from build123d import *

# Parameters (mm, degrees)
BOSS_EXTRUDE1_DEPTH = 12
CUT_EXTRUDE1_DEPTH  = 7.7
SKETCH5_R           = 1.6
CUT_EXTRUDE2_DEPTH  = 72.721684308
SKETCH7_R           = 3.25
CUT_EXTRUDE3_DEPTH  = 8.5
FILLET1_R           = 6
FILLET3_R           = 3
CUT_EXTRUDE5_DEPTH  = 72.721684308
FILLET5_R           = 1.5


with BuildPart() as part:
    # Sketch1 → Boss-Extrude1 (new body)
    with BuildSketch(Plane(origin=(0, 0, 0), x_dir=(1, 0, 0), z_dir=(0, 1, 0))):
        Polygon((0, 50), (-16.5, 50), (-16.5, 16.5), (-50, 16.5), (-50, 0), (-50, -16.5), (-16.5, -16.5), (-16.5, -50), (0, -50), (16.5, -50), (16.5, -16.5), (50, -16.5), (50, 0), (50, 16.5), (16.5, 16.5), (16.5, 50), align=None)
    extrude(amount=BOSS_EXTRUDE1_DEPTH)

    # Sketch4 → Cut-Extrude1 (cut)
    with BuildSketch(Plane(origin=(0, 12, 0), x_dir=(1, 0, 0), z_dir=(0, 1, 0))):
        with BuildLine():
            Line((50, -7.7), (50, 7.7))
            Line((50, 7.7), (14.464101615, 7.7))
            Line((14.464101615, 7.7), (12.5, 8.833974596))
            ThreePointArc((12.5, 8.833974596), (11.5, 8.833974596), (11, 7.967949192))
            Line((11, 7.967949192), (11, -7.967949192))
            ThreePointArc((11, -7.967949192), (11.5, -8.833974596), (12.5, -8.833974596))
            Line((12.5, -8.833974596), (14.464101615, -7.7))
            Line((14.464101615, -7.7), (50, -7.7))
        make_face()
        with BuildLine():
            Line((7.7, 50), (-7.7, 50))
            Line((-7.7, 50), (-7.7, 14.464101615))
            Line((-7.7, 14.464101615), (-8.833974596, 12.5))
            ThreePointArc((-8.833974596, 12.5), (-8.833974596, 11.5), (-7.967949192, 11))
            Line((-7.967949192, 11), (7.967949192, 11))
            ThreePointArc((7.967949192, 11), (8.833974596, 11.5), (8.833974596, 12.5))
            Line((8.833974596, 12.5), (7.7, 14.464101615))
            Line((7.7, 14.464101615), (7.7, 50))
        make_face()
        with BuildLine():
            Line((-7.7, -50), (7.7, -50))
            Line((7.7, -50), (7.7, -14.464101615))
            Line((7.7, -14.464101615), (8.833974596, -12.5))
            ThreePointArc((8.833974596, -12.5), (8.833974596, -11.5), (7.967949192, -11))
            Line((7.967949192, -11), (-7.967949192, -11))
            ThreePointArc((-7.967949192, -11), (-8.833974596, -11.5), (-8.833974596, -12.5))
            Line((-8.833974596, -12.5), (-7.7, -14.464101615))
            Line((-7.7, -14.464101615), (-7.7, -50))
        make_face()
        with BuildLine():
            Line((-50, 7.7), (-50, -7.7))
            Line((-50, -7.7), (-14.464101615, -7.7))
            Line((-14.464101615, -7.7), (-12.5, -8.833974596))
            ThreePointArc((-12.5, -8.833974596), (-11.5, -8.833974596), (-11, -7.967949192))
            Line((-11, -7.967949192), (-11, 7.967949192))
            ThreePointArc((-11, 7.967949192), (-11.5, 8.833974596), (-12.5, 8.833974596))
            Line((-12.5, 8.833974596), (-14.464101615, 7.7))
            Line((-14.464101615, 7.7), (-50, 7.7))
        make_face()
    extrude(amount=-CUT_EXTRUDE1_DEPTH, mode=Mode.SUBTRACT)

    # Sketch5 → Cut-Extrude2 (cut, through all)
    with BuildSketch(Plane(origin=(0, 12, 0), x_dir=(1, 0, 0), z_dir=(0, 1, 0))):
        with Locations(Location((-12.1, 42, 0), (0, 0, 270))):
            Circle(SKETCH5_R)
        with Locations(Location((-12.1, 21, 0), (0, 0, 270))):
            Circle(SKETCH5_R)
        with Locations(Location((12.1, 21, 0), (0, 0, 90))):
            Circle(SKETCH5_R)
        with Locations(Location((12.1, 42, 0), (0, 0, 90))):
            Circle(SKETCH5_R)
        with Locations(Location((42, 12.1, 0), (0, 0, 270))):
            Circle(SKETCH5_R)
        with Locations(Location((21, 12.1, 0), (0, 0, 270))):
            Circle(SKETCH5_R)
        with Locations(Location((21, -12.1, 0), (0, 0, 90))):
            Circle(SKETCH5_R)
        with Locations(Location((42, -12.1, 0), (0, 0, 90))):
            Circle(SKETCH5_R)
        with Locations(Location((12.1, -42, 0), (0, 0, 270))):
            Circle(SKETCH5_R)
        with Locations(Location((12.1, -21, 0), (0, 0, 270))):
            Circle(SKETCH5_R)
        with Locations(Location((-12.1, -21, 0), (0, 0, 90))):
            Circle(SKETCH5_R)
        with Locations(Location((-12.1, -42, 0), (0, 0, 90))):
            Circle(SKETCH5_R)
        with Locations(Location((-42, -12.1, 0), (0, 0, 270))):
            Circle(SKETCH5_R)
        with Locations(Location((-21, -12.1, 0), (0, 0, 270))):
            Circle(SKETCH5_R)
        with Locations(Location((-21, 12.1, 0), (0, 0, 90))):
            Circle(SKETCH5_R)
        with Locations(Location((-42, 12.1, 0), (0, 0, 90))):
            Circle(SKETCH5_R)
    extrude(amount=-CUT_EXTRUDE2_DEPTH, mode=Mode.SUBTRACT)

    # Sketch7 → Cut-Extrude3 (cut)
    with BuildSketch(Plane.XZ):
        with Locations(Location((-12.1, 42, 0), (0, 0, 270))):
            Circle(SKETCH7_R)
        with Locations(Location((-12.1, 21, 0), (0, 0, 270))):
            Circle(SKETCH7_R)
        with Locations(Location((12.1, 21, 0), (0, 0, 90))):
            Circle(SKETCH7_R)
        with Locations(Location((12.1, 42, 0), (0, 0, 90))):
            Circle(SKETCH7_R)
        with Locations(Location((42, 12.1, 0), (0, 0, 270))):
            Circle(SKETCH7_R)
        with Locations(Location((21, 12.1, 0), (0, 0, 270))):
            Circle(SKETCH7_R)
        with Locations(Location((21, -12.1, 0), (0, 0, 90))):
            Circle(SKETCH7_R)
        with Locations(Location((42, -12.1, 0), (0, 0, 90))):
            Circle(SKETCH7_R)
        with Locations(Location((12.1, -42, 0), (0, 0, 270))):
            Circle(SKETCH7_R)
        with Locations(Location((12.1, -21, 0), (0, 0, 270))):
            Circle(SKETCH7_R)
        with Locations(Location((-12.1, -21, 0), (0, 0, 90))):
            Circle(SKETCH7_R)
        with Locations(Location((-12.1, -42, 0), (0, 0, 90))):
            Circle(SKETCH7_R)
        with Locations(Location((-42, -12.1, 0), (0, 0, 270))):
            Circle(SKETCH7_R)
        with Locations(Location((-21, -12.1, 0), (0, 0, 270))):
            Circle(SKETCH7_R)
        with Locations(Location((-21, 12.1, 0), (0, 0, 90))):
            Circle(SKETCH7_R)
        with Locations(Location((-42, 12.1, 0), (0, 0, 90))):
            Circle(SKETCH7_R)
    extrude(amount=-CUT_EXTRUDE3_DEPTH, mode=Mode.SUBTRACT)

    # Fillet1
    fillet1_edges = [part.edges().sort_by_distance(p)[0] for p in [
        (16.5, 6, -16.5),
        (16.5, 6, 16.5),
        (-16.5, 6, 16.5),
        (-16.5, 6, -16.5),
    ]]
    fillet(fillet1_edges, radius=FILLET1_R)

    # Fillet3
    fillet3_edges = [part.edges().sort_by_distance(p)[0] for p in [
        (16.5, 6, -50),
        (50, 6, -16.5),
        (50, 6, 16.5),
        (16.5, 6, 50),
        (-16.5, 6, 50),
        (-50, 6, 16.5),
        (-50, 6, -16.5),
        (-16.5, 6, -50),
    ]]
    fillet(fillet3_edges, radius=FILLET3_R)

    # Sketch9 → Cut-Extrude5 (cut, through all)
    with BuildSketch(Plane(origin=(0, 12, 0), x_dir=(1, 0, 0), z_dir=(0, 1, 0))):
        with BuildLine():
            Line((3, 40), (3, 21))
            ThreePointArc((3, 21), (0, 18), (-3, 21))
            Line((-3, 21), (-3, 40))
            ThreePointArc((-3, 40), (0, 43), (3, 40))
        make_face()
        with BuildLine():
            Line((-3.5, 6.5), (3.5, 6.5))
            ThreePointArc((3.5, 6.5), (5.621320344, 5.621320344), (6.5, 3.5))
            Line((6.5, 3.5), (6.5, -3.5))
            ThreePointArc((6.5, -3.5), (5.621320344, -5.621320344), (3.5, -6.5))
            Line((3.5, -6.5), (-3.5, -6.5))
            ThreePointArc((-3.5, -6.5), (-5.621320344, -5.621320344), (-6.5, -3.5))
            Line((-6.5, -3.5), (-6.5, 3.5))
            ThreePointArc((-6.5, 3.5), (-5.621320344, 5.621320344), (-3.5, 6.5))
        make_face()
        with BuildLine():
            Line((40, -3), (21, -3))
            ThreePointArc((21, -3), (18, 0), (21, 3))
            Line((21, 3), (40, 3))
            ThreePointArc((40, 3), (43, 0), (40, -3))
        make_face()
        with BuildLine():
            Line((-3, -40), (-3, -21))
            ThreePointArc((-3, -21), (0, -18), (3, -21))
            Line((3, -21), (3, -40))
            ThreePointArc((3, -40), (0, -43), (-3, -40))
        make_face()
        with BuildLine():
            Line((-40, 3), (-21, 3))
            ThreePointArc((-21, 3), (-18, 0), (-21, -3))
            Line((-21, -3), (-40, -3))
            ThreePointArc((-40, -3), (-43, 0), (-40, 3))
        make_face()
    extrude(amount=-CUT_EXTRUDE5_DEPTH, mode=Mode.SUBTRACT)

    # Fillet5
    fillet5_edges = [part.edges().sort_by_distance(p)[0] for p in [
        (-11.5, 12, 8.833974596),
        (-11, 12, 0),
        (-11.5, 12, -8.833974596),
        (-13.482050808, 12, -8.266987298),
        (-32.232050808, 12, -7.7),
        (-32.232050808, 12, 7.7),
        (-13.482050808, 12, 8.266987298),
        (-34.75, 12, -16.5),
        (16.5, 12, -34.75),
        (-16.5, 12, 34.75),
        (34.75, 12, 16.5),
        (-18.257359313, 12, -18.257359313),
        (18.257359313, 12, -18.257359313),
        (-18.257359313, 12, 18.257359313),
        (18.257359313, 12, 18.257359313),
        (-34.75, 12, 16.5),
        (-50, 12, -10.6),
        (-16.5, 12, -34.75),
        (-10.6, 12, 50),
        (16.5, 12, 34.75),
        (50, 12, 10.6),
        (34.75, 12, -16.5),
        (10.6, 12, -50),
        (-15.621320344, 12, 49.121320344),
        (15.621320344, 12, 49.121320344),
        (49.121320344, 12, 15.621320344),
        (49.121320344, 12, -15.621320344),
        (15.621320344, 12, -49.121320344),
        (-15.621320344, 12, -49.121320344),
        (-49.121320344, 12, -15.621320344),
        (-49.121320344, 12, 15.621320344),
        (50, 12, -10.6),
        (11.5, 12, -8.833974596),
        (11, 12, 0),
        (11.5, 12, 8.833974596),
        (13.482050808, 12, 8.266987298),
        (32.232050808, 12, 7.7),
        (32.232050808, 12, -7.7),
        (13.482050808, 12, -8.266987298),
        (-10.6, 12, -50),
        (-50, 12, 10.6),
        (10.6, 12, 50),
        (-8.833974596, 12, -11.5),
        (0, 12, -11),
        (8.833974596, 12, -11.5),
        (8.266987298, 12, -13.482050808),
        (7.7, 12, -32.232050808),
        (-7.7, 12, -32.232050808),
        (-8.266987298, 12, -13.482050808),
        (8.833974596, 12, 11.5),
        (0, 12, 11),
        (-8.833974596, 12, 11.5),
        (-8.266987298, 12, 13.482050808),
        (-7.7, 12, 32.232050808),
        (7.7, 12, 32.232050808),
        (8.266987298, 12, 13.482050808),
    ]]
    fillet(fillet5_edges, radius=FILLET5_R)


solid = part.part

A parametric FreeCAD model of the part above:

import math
import FreeCAD as App
import Part
import Sketcher
from FreeCAD import Vector
Q = App.Units.Quantity


def edges_at(feature, points):
    """Names of the edges that pass closest to the given points."""
    edges = feature.Shape.Edges
    near = lambda p: min(range(len(edges)), key=lambda i: edges[i].distToShape(Part.Vertex(*p))[0])
    return sorted({f"Edge{near(p) + 1}" for p in points})


def add_polygon(sketch, points):
    """Adds a closed chain of lines whose ends are joined by coincident constraints."""
    first, n = sketch.GeometryCount, len(points)
    for a, b in zip(points, points[1:] + points[:1]):
        sketch.addGeometry(Part.LineSegment(App.Vector(*a, 0), App.Vector(*b, 0)), False)
    for i in range(n):
        sketch.addConstraint(Sketcher.Constraint("Coincident", first + i, 2, first + (i + 1) % n, 1))

doc = App.newDocument("Part")
body = doc.addObject("PartDesign::Body", "Body")

sketch1 = body.newObject("Sketcher::SketchObject", "Sketch")
sketch1.AttachmentSupport = (doc.getObject("XZ_Plane"), [""])
sketch1.MapMode = "FlatFace"
add_polygon(sketch1, [(-16, -50), (-16, -16), (-50, -16), (-50, 16), (-16, 16), (-16, 50), (16, 50), (16, 16), (50, 16), (50, -16), (16, -16), (16, -50)])
sketch1.addConstraint([
    Sketcher.Constraint("Vertical", 0),
    Sketcher.Constraint("Horizontal", 1),
    Sketcher.Constraint("Vertical", 2),
    Sketcher.Constraint("Horizontal", 3),
    Sketcher.Constraint("Vertical", 4),
    Sketcher.Constraint("Horizontal", 5),
    Sketcher.Constraint("Vertical", 6),
    Sketcher.Constraint("Horizontal", 7),
    Sketcher.Constraint("Vertical", 8),
    Sketcher.Constraint("Horizontal", 9),
    Sketcher.Constraint("Vertical", 10),
    Sketcher.Constraint("Horizontal", 11),
    Sketcher.Constraint("Symmetric", 0, 2, 6, 2, -1, 1),
    Sketcher.Constraint("Symmetric", 2, 2, 8, 2, -1, 1),
    Sketcher.Constraint("Symmetric", 4, 2, 10, 2, -1, 1),
    Sketcher.Constraint("Symmetric", 3, 2, 6, 2, -2),
    Sketcher.Constraint("Equal", 9, 0),
    Sketcher.Constraint("Equal", 11, 2),
    Sketcher.Constraint("DistanceX", 5, 1, 5, 2, Q("33 mm")),
    Sketcher.Constraint("DistanceX", 1, 2, 1, 1, Q("33.5 mm")),
])
pad1 = body.newObject("PartDesign::Pad", "Pad")
pad1.Profile = sketch1
pad1.Length = 12
pad1.Reversed = True

sketch2 = body.newObject("Sketcher::SketchObject", "Sketch001")
sketch2.AttachmentSupport = (doc.getObject("XZ_Plane"), [""])
sketch2.MapMode = "FlatFace"
sketch2.AttachmentOffset = App.Placement(Vector(0, 0, -12), App.Rotation())
sketch2.addGeometry([
    Part.LineSegment(Vector(50, 7.7, 0), Vector(50, -7.7, 0)),
    Part.LineSegment(Vector(50, -7.7, 0), Vector(14.5, -7.7, 0)),
    Part.LineSegment(Vector(14.5, -7.7, 0), Vector(12.5, -8.8, 0)),
    Part.ArcOfCircle(Part.Circle(Vector(12, -8, 0), Vector(0, 0, 1), 1), math.radians(180), math.radians(300)),
    Part.LineSegment(Vector(11, -8, 0), Vector(11, 8, 0)),
    Part.ArcOfCircle(Part.Circle(Vector(12, 8, 0), Vector(0, 0, 1), 1), math.radians(60), math.radians(180)),
    Part.LineSegment(Vector(12.5, 8.8, 0), Vector(14.5, 7.7, 0)),
    Part.LineSegment(Vector(14.5, 7.7, 0), Vector(50, 7.7, 0)),
    Part.LineSegment(Vector(7.7, -50, 0), Vector(-7.7, -50, 0)),
    Part.LineSegment(Vector(-7.7, -50, 0), Vector(-7.7, -14.5, 0)),
    Part.LineSegment(Vector(-7.7, -14.5, 0), Vector(-8.8, -12.5, 0)),
    Part.ArcOfCircle(Part.Circle(Vector(-8, -12, 0), Vector(0, 0, 1), 1), math.radians(90), math.radians(210)),
    Part.LineSegment(Vector(-8, -11, 0), Vector(8, -11, 0)),
    Part.ArcOfCircle(Part.Circle(Vector(8, -12, 0), Vector(0, 0, 1), 1), math.radians(-30), math.radians(90)),
    Part.LineSegment(Vector(8.8, -12.5, 0), Vector(7.7, -14.5, 0)),
    Part.LineSegment(Vector(7.7, -14.5, 0), Vector(7.7, -50, 0)),
    Part.LineSegment(Vector(-7.7, 50, 0), Vector(7.7, 50, 0)),
    Part.LineSegment(Vector(7.7, 50, 0), Vector(7.7, 14.5, 0)),
    Part.LineSegment(Vector(7.7, 14.5, 0), Vector(8.8, 12.5, 0)),
    Part.ArcOfCircle(Part.Circle(Vector(8, 12, 0), Vector(0, 0, 1), 1), math.radians(-90), math.radians(30)),
    Part.LineSegment(Vector(8, 11, 0), Vector(-8, 11, 0)),
    Part.ArcOfCircle(Part.Circle(Vector(-8, 12, 0), Vector(0, 0, 1), 1), math.radians(150), math.radians(270)),
    Part.LineSegment(Vector(-8.8, 12.5, 0), Vector(-7.7, 14.5, 0)),
    Part.LineSegment(Vector(-7.7, 14.5, 0), Vector(-7.7, 50, 0)),
    Part.LineSegment(Vector(-50, -7.7, 0), Vector(-50, 7.7, 0)),
    Part.LineSegment(Vector(-50, 7.7, 0), Vector(-14.5, 7.7, 0)),
    Part.LineSegment(Vector(-14.5, 7.7, 0), Vector(-12.5, 8.8, 0)),
    Part.ArcOfCircle(Part.Circle(Vector(-12, 8, 0), Vector(0, 0, 1), 1), math.radians(0), math.radians(120)),
    Part.LineSegment(Vector(-11, 8, 0), Vector(-11, -8, 0)),
    Part.ArcOfCircle(Part.Circle(Vector(-12, -8, 0), Vector(0, 0, 1), 1), math.radians(-120), math.radians(0)),
    Part.LineSegment(Vector(-12.5, -8.8, 0), Vector(-14.5, -7.7, 0)),
    Part.LineSegment(Vector(-14.5, -7.7, 0), Vector(-50, -7.7, 0)),
], False)
sketch2.addConstraint([
    Sketcher.Constraint("Coincident", 0, 2, 1, 1),
    Sketcher.Constraint("Coincident", 1, 2, 2, 1),
    Sketcher.Constraint("Tangent", 2, 2, 3, 2),
    Sketcher.Constraint("Tangent", 3, 1, 4, 1),
    Sketcher.Constraint("Tangent", 4, 2, 5, 2),
    Sketcher.Constraint("Tangent", 5, 1, 6, 1),
    Sketcher.Constraint("Coincident", 6, 2, 7, 1),
    Sketcher.Constraint("Coincident", 7, 2, 0, 1),
    Sketcher.Constraint("Coincident", 8, 2, 9, 1),
    Sketcher.Constraint("Coincident", 9, 2, 10, 1),
    Sketcher.Constraint("Tangent", 10, 2, 11, 2),
    Sketcher.Constraint("Tangent", 11, 1, 12, 1),
    Sketcher.Constraint("Tangent", 12, 2, 13, 2),
    Sketcher.Constraint("Tangent", 13, 1, 14, 1),
    Sketcher.Constraint("Coincident", 14, 2, 15, 1),
    Sketcher.Constraint("Coincident", 15, 2, 8, 1),
    Sketcher.Constraint("Coincident", 16, 2, 17, 1),
    Sketcher.Constraint("Coincident", 17, 2, 18, 1),
    Sketcher.Constraint("Tangent", 18, 2, 19, 2),
    Sketcher.Constraint("Tangent", 19, 1, 20, 1),
    Sketcher.Constraint("Tangent", 20, 2, 21, 2),
    Sketcher.Constraint("Tangent", 21, 1, 22, 1),
    Sketcher.Constraint("Coincident", 22, 2, 23, 1),
    Sketcher.Constraint("Coincident", 23, 2, 16, 1),
    Sketcher.Constraint("Coincident", 24, 2, 25, 1),
    Sketcher.Constraint("Coincident", 25, 2, 26, 1),
    Sketcher.Constraint("Tangent", 26, 2, 27, 2),
    Sketcher.Constraint("Tangent", 27, 1, 28, 1),
    Sketcher.Constraint("Tangent", 28, 2, 29, 2),
    Sketcher.Constraint("Tangent", 29, 1, 30, 1),
    Sketcher.Constraint("Coincident", 30, 2, 31, 1),
    Sketcher.Constraint("Coincident", 31, 2, 24, 1),
    Sketcher.Constraint("Vertical", 0),
    Sketcher.Constraint("Horizontal", 1),
    Sketcher.Constraint("Vertical", 4),
    Sketcher.Constraint("Horizontal", 7),
    Sketcher.Constraint("Horizontal", 8),
    Sketcher.Constraint("Vertical", 9),
    Sketcher.Constraint("Horizontal", 12),
    Sketcher.Constraint("Vertical", 15),
    Sketcher.Constraint("Horizontal", 16),
    Sketcher.Constraint("Vertical", 17),
    Sketcher.Constraint("Horizontal", 20),
    Sketcher.Constraint("Vertical", 23),
    Sketcher.Constraint("Vertical", 24),
    Sketcher.Constraint("Horizontal", 25),
    Sketcher.Constraint("Vertical", 28),
    Sketcher.Constraint("Horizontal", 31),
    Sketcher.Constraint("Equal", 3, 5),
    Sketcher.Constraint("Equal", 5, 11),
    Sketcher.Constraint("Equal", 11, 13),
    Sketcher.Constraint("Equal", 13, 19),
    Sketcher.Constraint("Equal", 19, 21),
    Sketcher.Constraint("Equal", 21, 27),
    Sketcher.Constraint("Equal", 27, 29),
    Sketcher.Constraint("Symmetric", 11, 3, 19, 3, -1, 1),
    Sketcher.Constraint("Symmetric", 3, 3, 27, 3, -1, 1),
    Sketcher.Constraint("Symmetric", 8, 2, 16, 2, -1, 1),
    Sketcher.Constraint("Symmetric", 13, 1, 21, 1, -1, 1),
    Sketcher.Constraint("Symmetric", 0, 2, 24, 2, -1, 1),
    Sketcher.Constraint("Symmetric", 5, 1, 29, 1, -1, 1),
    Sketcher.Constraint("Symmetric", 10, 2, 13, 1, -2),
    Sketcher.Constraint("Symmetric", 17, 2, 22, 2, -2),
    Sketcher.Constraint("Symmetric", 6, 2, 25, 2, -2),
    Sketcher.Constraint("Symmetric", 2, 2, 29, 1, -2),
    Sketcher.Constraint("Perpendicular", 2, 10),
    Sketcher.Constraint("Horizontal", 9, 2, 14, 2),
    Sketcher.Constraint("Horizontal", 1, 2, 30, 2),
    Sketcher.Constraint("Equal", 16, 0),
    Sketcher.Constraint("Equal", 20, 4),
    Sketcher.Constraint("Equal", 31, 9),
    Sketcher.Constraint("Radius", 3, Q("1 mm")),
    Sketcher.Constraint("Angle", 2, Q("-150 deg")),
    Sketcher.Constraint("DistanceX", 8, 2, 8, 1, Q("15.4 mm")),
    Sketcher.Constraint("DistanceX", -1, 1, 3, 3, Q("12 mm")),
    Sketcher.Constraint("DistanceY", 11, 3, -1, 1, Q("12 mm")),
    Sketcher.Constraint("DistanceX", -1, 1, 0, 2, Q("50 mm")),
    Sketcher.Constraint("DistanceX", 1, 2, 1, 1, Q("35.535898 mm")),
])
pocket1 = body.newObject("PartDesign::Pocket", "Pocket")
pocket1.Profile = sketch2
pocket1.Length = 7.7
pocket1.Reversed = True

sketch3 = body.newObject("Sketcher::SketchObject", "Sketch002")
sketch3.AttachmentSupport = (doc.getObject("XZ_Plane"), [""])
sketch3.MapMode = "FlatFace"
sketch3.AttachmentOffset = App.Placement(Vector(0, 0, -12), App.Rotation())
sketch3.addGeometry([
    Part.Circle(Vector(-12.1, -42, 0), Vector(0, 0, 1), 1.6),
    Part.Circle(Vector(-12.1, -21, 0), Vector(0, 0, 1), 1.6),
    Part.Circle(Vector(12.1, -21, 0), Vector(0, 0, 1), 1.6),
    Part.Circle(Vector(12.1, -42, 0), Vector(0, 0, 1), 1.6),
    Part.Circle(Vector(42, -12.1, 0), Vector(0, 0, 1), 1.6),
    Part.Circle(Vector(21, -12.1, 0), Vector(0, 0, 1), 1.6),
    Part.Circle(Vector(21, 12.1, 0), Vector(0, 0, 1), 1.6),
    Part.Circle(Vector(42, 12.1, 0), Vector(0, 0, 1), 1.6),
    Part.Circle(Vector(12.1, 42, 0), Vector(0, 0, 1), 1.6),
    Part.Circle(Vector(12.1, 21, 0), Vector(0, 0, 1), 1.6),
    Part.Circle(Vector(-12.1, 21, 0), Vector(0, 0, 1), 1.6),
    Part.Circle(Vector(-12.1, 42, 0), Vector(0, 0, 1), 1.6),
    Part.Circle(Vector(-42, 12.1, 0), Vector(0, 0, 1), 1.6),
    Part.Circle(Vector(-21, 12.1, 0), Vector(0, 0, 1), 1.6),
    Part.Circle(Vector(-21, -12.1, 0), Vector(0, 0, 1), 1.6),
    Part.Circle(Vector(-42, -12.1, 0), Vector(0, 0, 1), 1.6),
], False)
sketch3.addConstraint([
    Sketcher.Constraint("Equal", 0, 1),
    Sketcher.Constraint("Equal", 1, 2),
    Sketcher.Constraint("Equal", 2, 3),
    Sketcher.Constraint("Equal", 3, 4),
    Sketcher.Constraint("Equal", 4, 5),
    Sketcher.Constraint("Equal", 5, 6),
    Sketcher.Constraint("Equal", 6, 7),
    Sketcher.Constraint("Equal", 7, 8),
    Sketcher.Constraint("Equal", 8, 9),
    Sketcher.Constraint("Equal", 9, 10),
    Sketcher.Constraint("Equal", 10, 11),
    Sketcher.Constraint("Equal", 11, 12),
    Sketcher.Constraint("Equal", 12, 13),
    Sketcher.Constraint("Equal", 13, 14),
    Sketcher.Constraint("Equal", 14, 15),
    Sketcher.Constraint("Symmetric", 0, 3, 8, 3, -1, 1),
    Sketcher.Constraint("Symmetric", 1, 3, 9, 3, -1, 1),
    Sketcher.Constraint("Symmetric", 2, 3, 10, 3, -1, 1),
    Sketcher.Constraint("Symmetric", 3, 3, 11, 3, -1, 1),
    Sketcher.Constraint("Symmetric", 4, 3, 12, 3, -1, 1),
    Sketcher.Constraint("Symmetric", 5, 3, 13, 3, -1, 1),
    Sketcher.Constraint("Symmetric", 6, 3, 14, 3, -1, 1),
    Sketcher.Constraint("Symmetric", 7, 3, 15, 3, -1, 1),
    Sketcher.Constraint("Symmetric", 1, 3, 2, 3, -2),
    Sketcher.Constraint("Symmetric", 0, 3, 3, 3, -2),
    Sketcher.Constraint("Symmetric", 7, 3, 12, 3, -2),
    Sketcher.Constraint("Symmetric", 6, 3, 13, 3, -2),
    Sketcher.Constraint("Horizontal", 4, 3, 5, 3),
    Sketcher.Constraint("Vertical", 0, 3, 1, 3),
    Sketcher.Constraint("Diameter", 0, Q("3.2 mm")),
    Sketcher.Constraint("DistanceY", 0, 3, -1, 1, Q("42 mm")),
    Sketcher.Constraint("DistanceY", 1, 3, -1, 1, Q("21 mm")),
    Sketcher.Constraint("DistanceX", -1, 1, 4, 3, Q("42 mm")),
    Sketcher.Constraint("DistanceX", -1, 1, 5, 3, Q("21 mm")),
    Sketcher.Constraint("DistanceX", 0, 3, -1, 1, Q("12.1 mm")),
    Sketcher.Constraint("DistanceY", 4, 3, -1, 1, Q("12.1 mm")),
])
pocket2 = body.newObject("PartDesign::Pocket", "Pocket001")
pocket2.Profile = sketch3
pocket2.Type = "ThroughAll"
pocket2.Reversed = True

sketch4 = body.newObject("Sketcher::SketchObject", "Sketch003")
sketch4.AttachmentSupport = (doc.getObject("XZ_Plane"), [""])
sketch4.MapMode = "FlatFace"
sketch4.addGeometry([
    Part.Circle(Vector(-12.1, 42, 0), Vector(0, 0, 1), 3.2),
    Part.Circle(Vector(-12.1, 21, 0), Vector(0, 0, 1), 3.2),
    Part.Circle(Vector(12.1, 21, 0), Vector(0, 0, 1), 3.2),
    Part.Circle(Vector(12.1, 42, 0), Vector(0, 0, 1), 3.2),
    Part.Circle(Vector(42, 12.1, 0), Vector(0, 0, 1), 3.2),
    Part.Circle(Vector(21, 12.1, 0), Vector(0, 0, 1), 3.2),
    Part.Circle(Vector(21, -12.1, 0), Vector(0, 0, 1), 3.2),
    Part.Circle(Vector(42, -12.1, 0), Vector(0, 0, 1), 3.2),
    Part.Circle(Vector(12.1, -42, 0), Vector(0, 0, 1), 3.2),
    Part.Circle(Vector(12.1, -21, 0), Vector(0, 0, 1), 3.2),
    Part.Circle(Vector(-12.1, -21, 0), Vector(0, 0, 1), 3.2),
    Part.Circle(Vector(-12.1, -42, 0), Vector(0, 0, 1), 3.2),
    Part.Circle(Vector(-42, -12.1, 0), Vector(0, 0, 1), 3.2),
    Part.Circle(Vector(-21, -12.1, 0), Vector(0, 0, 1), 3.2),
    Part.Circle(Vector(-21, 12.1, 0), Vector(0, 0, 1), 3.2),
    Part.Circle(Vector(-42, 12.1, 0), Vector(0, 0, 1), 3.2),
], False)
sketch4.addConstraint([
    Sketcher.Constraint("Equal", 0, 1),
    Sketcher.Constraint("Equal", 1, 2),
    Sketcher.Constraint("Equal", 2, 3),
    Sketcher.Constraint("Equal", 3, 4),
    Sketcher.Constraint("Equal", 4, 5),
    Sketcher.Constraint("Equal", 5, 6),
    Sketcher.Constraint("Equal", 6, 7),
    Sketcher.Constraint("Equal", 7, 8),
    Sketcher.Constraint("Equal", 8, 9),
    Sketcher.Constraint("Equal", 9, 10),
    Sketcher.Constraint("Equal", 10, 11),
    Sketcher.Constraint("Equal", 11, 12),
    Sketcher.Constraint("Equal", 12, 13),
    Sketcher.Constraint("Equal", 13, 14),
    Sketcher.Constraint("Equal", 14, 15),
    Sketcher.Constraint("Symmetric", 0, 3, 8, 3, -1, 1),
    Sketcher.Constraint("Symmetric", 1, 3, 9, 3, -1, 1),
    Sketcher.Constraint("Symmetric", 2, 3, 10, 3, -1, 1),
    Sketcher.Constraint("Symmetric", 3, 3, 11, 3, -1, 1),
    Sketcher.Constraint("Symmetric", 4, 3, 12, 3, -1, 1),
    Sketcher.Constraint("Symmetric", 5, 3, 13, 3, -1, 1),
    Sketcher.Constraint("Symmetric", 6, 3, 14, 3, -1, 1),
    Sketcher.Constraint("Symmetric", 7, 3, 15, 3, -1, 1),
    Sketcher.Constraint("Symmetric", 1, 3, 2, 3, -2),
    Sketcher.Constraint("Symmetric", 0, 3, 3, 3, -2),
    Sketcher.Constraint("Symmetric", 7, 3, 12, 3, -2),
    Sketcher.Constraint("Symmetric", 6, 3, 13, 3, -2),
    Sketcher.Constraint("Horizontal", 4, 3, 5, 3),
    Sketcher.Constraint("Vertical", 0, 3, 1, 3),
    Sketcher.Constraint("Diameter", 0, Q("6.5 mm")),
    Sketcher.Constraint("DistanceY", -1, 1, 0, 3, Q("42 mm")),
    Sketcher.Constraint("DistanceY", -1, 1, 1, 3, Q("21 mm")),
    Sketcher.Constraint("DistanceX", -1, 1, 4, 3, Q("42 mm")),
    Sketcher.Constraint("DistanceX", -1, 1, 5, 3, Q("21 mm")),
    Sketcher.Constraint("DistanceX", 0, 3, -1, 1, Q("12.1 mm")),
    Sketcher.Constraint("DistanceY", -1, 1, 4, 3, Q("12.1 mm")),
])
pocket3 = body.newObject("PartDesign::Pocket", "Pocket002")
pocket3.Profile = sketch4
pocket3.Length = 8.5
doc.recompute()

fillet = body.newObject("PartDesign::Fillet", "Fillet")
fillet.Base = (pocket3, edges_at(pocket3, [
    (16.5, 6, -16.5),
    (16.5, 6, 16.5),
    (-16.5, 6, 16.5),
    (-16.5, 6, -16.5),
]))
fillet.Radius = 6
doc.recompute()

fillet2 = body.newObject("PartDesign::Fillet", "Fillet001")
fillet2.Base = (fillet, edges_at(fillet, [
    (16.5, 6, -50),
    (50, 6, -16.5),
    (50, 6, 16.5),
    (16.5, 6, 50),
    (-16.5, 6, 50),
    (-50, 6, 16.5),
    (-50, 6, -16.5),
    (-16.5, 6, -50),
]))
fillet2.Radius = 3

sketch5 = body.newObject("Sketcher::SketchObject", "Sketch004")
sketch5.AttachmentSupport = (doc.getObject("XZ_Plane"), [""])
sketch5.MapMode = "FlatFace"
sketch5.AttachmentOffset = App.Placement(Vector(0, 0, -12), App.Rotation())
sketch5.addGeometry([
    Part.LineSegment(Vector(3, -21, 0), Vector(3, -40, 0)),
    Part.ArcOfCircle(Part.Circle(Vector(0, -40, 0), Vector(0, 0, 1), 3), math.radians(180), math.radians(360)),
    Part.LineSegment(Vector(-3, -40, 0), Vector(-3, -21, 0)),
    Part.ArcOfCircle(Part.Circle(Vector(0, -21, 0), Vector(0, 0, 1), 3), math.radians(0), math.radians(180)),
    Part.LineSegment(Vector(3.5, -6.5, 0), Vector(-3.5, -6.5, 0)),
    Part.ArcOfCircle(Part.Circle(Vector(-3.5, -3.5, 0), Vector(0, 0, 1), 3), math.radians(180), math.radians(270)),
    Part.LineSegment(Vector(-6.5, -3.5, 0), Vector(-6.5, 3.5, 0)),
    Part.ArcOfCircle(Part.Circle(Vector(-3.5, 3.5, 0), Vector(0, 0, 1), 3), math.radians(90), math.radians(180)),
    Part.LineSegment(Vector(-3.5, 6.5, 0), Vector(3.5, 6.5, 0)),
    Part.ArcOfCircle(Part.Circle(Vector(3.5, 3.5, 0), Vector(0, 0, 1), 3), math.radians(0), math.radians(90)),
    Part.LineSegment(Vector(6.5, 3.5, 0), Vector(6.5, -3.5, 0)),
    Part.ArcOfCircle(Part.Circle(Vector(3.5, -3.5, 0), Vector(0, 0, 1), 3), math.radians(-90), math.radians(0)),
    Part.LineSegment(Vector(21, 3, 0), Vector(40, 3, 0)),
    Part.ArcOfCircle(Part.Circle(Vector(40, 0, 0), Vector(0, 0, 1), 3), math.radians(-90), math.radians(90)),
    Part.LineSegment(Vector(40, -3, 0), Vector(21, -3, 0)),
    Part.ArcOfCircle(Part.Circle(Vector(21, 0, 0), Vector(0, 0, 1), 3), math.radians(90), math.radians(270)),
    Part.LineSegment(Vector(-3, 21, 0), Vector(-3, 40, 0)),
    Part.ArcOfCircle(Part.Circle(Vector(0, 40, 0), Vector(0, 0, 1), 3), math.radians(0), math.radians(180)),
    Part.LineSegment(Vector(3, 40, 0), Vector(3, 21, 0)),
    Part.ArcOfCircle(Part.Circle(Vector(0, 21, 0), Vector(0, 0, 1), 3), math.radians(180), math.radians(360)),
    Part.LineSegment(Vector(-21, -3, 0), Vector(-40, -3, 0)),
    Part.ArcOfCircle(Part.Circle(Vector(-40, 0, 0), Vector(0, 0, 1), 3), math.radians(90), math.radians(270)),
    Part.LineSegment(Vector(-40, 3, 0), Vector(-21, 3, 0)),
    Part.ArcOfCircle(Part.Circle(Vector(-21, 0, 0), Vector(0, 0, 1), 3), math.radians(-90), math.radians(90)),
], False)
sketch5.addConstraint([
    Sketcher.Constraint("Tangent", 0, 2, 1, 2),
    Sketcher.Constraint("Tangent", 1, 1, 2, 1),
    Sketcher.Constraint("Tangent", 2, 2, 3, 2),
    Sketcher.Constraint("Tangent", 3, 1, 0, 1),
    Sketcher.Constraint("Tangent", 4, 2, 5, 2),
    Sketcher.Constraint("Tangent", 5, 1, 6, 1),
    Sketcher.Constraint("Tangent", 6, 2, 7, 2),
    Sketcher.Constraint("Tangent", 7, 1, 8, 1),
    Sketcher.Constraint("Tangent", 8, 2, 9, 2),
    Sketcher.Constraint("Tangent", 9, 1, 10, 1),
    Sketcher.Constraint("Tangent", 10, 2, 11, 2),
    Sketcher.Constraint("Tangent", 11, 1, 4, 1),
    Sketcher.Constraint("Tangent", 12, 2, 13, 2),
    Sketcher.Constraint("Tangent", 13, 1, 14, 1),
    Sketcher.Constraint("Tangent", 14, 2, 15, 2),
    Sketcher.Constraint("Tangent", 15, 1, 12, 1),
    Sketcher.Constraint("Tangent", 16, 2, 17, 2),
    Sketcher.Constraint("Tangent", 17, 1, 18, 1),
    Sketcher.Constraint("Tangent", 18, 2, 19, 2),
    Sketcher.Constraint("Tangent", 19, 1, 16, 1),
    Sketcher.Constraint("Tangent", 20, 2, 21, 2),
    Sketcher.Constraint("Tangent", 21, 1, 22, 1),
    Sketcher.Constraint("Tangent", 22, 2, 23, 2),
    Sketcher.Constraint("Tangent", 23, 1, 20, 1),
    Sketcher.Constraint("Vertical", 0),
    Sketcher.Constraint("Vertical", 2),
    Sketcher.Constraint("Horizontal", 4),
    Sketcher.Constraint("Vertical", 6),
    Sketcher.Constraint("Horizontal", 8),
    Sketcher.Constraint("Vertical", 10),
    Sketcher.Constraint("Horizontal", 12),
    Sketcher.Constraint("Horizontal", 14),
    Sketcher.Constraint("Vertical", 16),
    Sketcher.Constraint("Vertical", 18),
    Sketcher.Constraint("Horizontal", 20),
    Sketcher.Constraint("Horizontal", 22),
    Sketcher.Constraint("Equal", 3, 5),
    Sketcher.Constraint("Equal", 5, 7),
    Sketcher.Constraint("Equal", 7, 9),
    Sketcher.Constraint("Equal", 9, 11),
    Sketcher.Constraint("Equal", 11, 13),
    Sketcher.Constraint("Equal", 15, 17),
    Sketcher.Constraint("Equal", 19, 21),
    Sketcher.Constraint("Symmetric", 5, 3, 9, 3, -1, 1),
    Sketcher.Constraint("Symmetric", 1, 3, 17, 3, -1, 1),
    Sketcher.Constraint("Symmetric", 13, 3, 21, 3, -1, 1),
    Sketcher.Constraint("Symmetric", 15, 3, 23, 3, -2),
    Sketcher.Constraint("Symmetric", 3, 3, 19, 3, -1),
    Sketcher.Constraint("Equal", 22, 0),
    Sketcher.Constraint("Equal", 8, 6),
    Sketcher.Constraint("Radius", 1, Q("3 mm")),
    Sketcher.Constraint("DistanceX", 4, 2, 4, 1, Q("7 mm")),
    Sketcher.Constraint("DistanceX", 12, 1, 12, 2, Q("19 mm")),
    Sketcher.Constraint("DistanceY", 1, 3, -1, 1, Q("40 mm")),
    Sketcher.Constraint("DistanceX", -1, 1, 13, 3, Q("40 mm")),
])
pocket4 = body.newObject("PartDesign::Pocket", "Pocket003")
pocket4.Profile = sketch5
pocket4.Type = "ThroughAll"
pocket4.Reversed = True
doc.recompute()

fillet3 = body.newObject("PartDesign::Fillet", "Fillet002")
fillet3.Base = (pocket4, edges_at(pocket4, [
    (-11.5, 12, 8.834),
    (-11, 12, 0),
    (-11.5, 12, -8.834),
    (-13.482, 12, -8.267),
    (-32.232, 12, -7.7),
    (-32.232, 12, 7.7),
    (-13.482, 12, 8.267),
    (-34.75, 12, -16.5),
    (16.5, 12, -34.75),
    (-16.5, 12, 34.75),
    (34.75, 12, 16.5),
    (-18.257, 12, -18.257),
    (18.257, 12, -18.257),
    (-18.257, 12, 18.257),
    (18.257, 12, 18.257),
    (-34.75, 12, 16.5),
    (-50, 12, -10.6),
    (-16.5, 12, -34.75),
    (-10.6, 12, 50),
    (16.5, 12, 34.75),
    (50, 12, 10.6),
    (34.75, 12, -16.5),
    (10.6, 12, -50),
    (-15.621, 12, 49.121),
    (15.621, 12, 49.121),
    (49.121, 12, 15.621),
    (49.121, 12, -15.621),
    (15.621, 12, -49.121),
    (-15.621, 12, -49.121),
    (-49.121, 12, -15.621),
    (-49.121, 12, 15.621),
    (50, 12, -10.6),
    (11.5, 12, -8.834),
    (11, 12, 0),
    (11.5, 12, 8.834),
    (13.482, 12, 8.267),
    (32.232, 12, 7.7),
    (32.232, 12, -7.7),
    (13.482, 12, -8.267),
    (-10.6, 12, -50),
    (-50, 12, 10.6),
    (10.6, 12, 50),
    (-8.834, 12, -11.5),
    (0, 12, -11),
    (8.834, 12, -11.5),
    (8.267, 12, -13.482),
    (7.7, 12, -32.232),
    (-7.7, 12, -32.232),
    (-8.267, 12, -13.482),
    (8.834, 12, 11.5),
    (0, 12, 11),
    (-8.834, 12, 11.5),
    (-8.267, 12, 13.482),
    (-7.7, 12, 32.232),
    (7.7, 12, 32.232),
    (8.267, 12, 13.482),
]))
fillet3.Radius = 1.5

doc.recompute()
